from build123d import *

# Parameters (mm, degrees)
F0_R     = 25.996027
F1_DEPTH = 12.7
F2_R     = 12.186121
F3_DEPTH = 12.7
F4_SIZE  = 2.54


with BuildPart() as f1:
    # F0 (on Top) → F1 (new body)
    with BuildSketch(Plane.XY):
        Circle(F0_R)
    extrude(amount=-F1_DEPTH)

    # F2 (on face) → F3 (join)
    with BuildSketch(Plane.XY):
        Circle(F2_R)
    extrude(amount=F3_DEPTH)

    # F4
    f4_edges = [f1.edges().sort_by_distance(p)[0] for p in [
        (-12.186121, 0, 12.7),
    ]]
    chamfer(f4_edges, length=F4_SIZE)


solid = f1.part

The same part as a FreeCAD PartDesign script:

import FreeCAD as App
import Part
import Sketcher


def edges_at(feature, points):
    """Names of the edges that pass closest to the given points."""
    edges = feature.Shape.Edges
    near = lambda p: min(range(len(edges)), key=lambda i: edges[i].distToShape(Part.Vertex(*p))[0])
    return sorted({f"Edge{near(p) + 1}" for p in points})

doc = App.newDocument("Part")
params = doc.addObject("Spreadsheet::Sheet", "Params")
for row, (alias, value) in enumerate([
    ("pad1_length", "0.5 in"),
    ("pad2_length", "0.5 in"),
    ("chamfer_size", "0.1 in"),
], start=1):
    params.set(f"A{row}", alias)
    params.set(f"B{row}", "=" + value)
    params.setAlias(f"B{row}", alias)

body = doc.addObject("PartDesign::Body", "Body")

sketch1 = body.newObject("Sketcher::SketchObject", "Sketch")
sketch1.AttachmentSupport = (doc.getObject("XY_Plane"), [""])
sketch1.MapMode = "FlatFace"
sketch1.addGeometry(Part.Circle(App.Vector(0, 0, 0), App.Vector(0, 0, 1), 26), False)
sketch1.addConstraint([
    Sketcher.Constraint("Coincident", 0, 3, -1, 1),
    Sketcher.Constraint("Diameter", 0, 51.992054),
])
pad1 = body.newObject("PartDesign::Pad", "Pad")
pad1.Profile = sketch1
pad1.setExpression("Length", "Params.pad1_length")
pad1.Reversed = True

sketch2 = body.newObject("Sketcher::SketchObject", "Sketch001")
sketch2.AttachmentSupport = (doc.getObject("XY_Plane"), [""])
sketch2.MapMode = "FlatFace"
sketch2.addGeometry(Part.Circle(App.Vector(0, 0, 0), App.Vector(0, 0, 1), 12), False)
sketch2.addConstraint([
    Sketcher.Constraint("Coincident", 0, 3, -1, 1),
    Sketcher.Constraint("Diameter", 0, 24.372242),
])
pad2 = body.newObject("PartDesign::Pad", "Pad001")
pad2.Profile = sketch2
pad2.setExpression("Length", "Params.pad2_length")
doc.recompute()

chamfer = body.newObject("PartDesign::Chamfer", "Chamfer")
chamfer.Base = (pad2, edges_at(pad2, [(-12.186, 0, 12.7)]))
chamfer.setExpression("Size", "Params.chamfer_size")

doc.recompute()
